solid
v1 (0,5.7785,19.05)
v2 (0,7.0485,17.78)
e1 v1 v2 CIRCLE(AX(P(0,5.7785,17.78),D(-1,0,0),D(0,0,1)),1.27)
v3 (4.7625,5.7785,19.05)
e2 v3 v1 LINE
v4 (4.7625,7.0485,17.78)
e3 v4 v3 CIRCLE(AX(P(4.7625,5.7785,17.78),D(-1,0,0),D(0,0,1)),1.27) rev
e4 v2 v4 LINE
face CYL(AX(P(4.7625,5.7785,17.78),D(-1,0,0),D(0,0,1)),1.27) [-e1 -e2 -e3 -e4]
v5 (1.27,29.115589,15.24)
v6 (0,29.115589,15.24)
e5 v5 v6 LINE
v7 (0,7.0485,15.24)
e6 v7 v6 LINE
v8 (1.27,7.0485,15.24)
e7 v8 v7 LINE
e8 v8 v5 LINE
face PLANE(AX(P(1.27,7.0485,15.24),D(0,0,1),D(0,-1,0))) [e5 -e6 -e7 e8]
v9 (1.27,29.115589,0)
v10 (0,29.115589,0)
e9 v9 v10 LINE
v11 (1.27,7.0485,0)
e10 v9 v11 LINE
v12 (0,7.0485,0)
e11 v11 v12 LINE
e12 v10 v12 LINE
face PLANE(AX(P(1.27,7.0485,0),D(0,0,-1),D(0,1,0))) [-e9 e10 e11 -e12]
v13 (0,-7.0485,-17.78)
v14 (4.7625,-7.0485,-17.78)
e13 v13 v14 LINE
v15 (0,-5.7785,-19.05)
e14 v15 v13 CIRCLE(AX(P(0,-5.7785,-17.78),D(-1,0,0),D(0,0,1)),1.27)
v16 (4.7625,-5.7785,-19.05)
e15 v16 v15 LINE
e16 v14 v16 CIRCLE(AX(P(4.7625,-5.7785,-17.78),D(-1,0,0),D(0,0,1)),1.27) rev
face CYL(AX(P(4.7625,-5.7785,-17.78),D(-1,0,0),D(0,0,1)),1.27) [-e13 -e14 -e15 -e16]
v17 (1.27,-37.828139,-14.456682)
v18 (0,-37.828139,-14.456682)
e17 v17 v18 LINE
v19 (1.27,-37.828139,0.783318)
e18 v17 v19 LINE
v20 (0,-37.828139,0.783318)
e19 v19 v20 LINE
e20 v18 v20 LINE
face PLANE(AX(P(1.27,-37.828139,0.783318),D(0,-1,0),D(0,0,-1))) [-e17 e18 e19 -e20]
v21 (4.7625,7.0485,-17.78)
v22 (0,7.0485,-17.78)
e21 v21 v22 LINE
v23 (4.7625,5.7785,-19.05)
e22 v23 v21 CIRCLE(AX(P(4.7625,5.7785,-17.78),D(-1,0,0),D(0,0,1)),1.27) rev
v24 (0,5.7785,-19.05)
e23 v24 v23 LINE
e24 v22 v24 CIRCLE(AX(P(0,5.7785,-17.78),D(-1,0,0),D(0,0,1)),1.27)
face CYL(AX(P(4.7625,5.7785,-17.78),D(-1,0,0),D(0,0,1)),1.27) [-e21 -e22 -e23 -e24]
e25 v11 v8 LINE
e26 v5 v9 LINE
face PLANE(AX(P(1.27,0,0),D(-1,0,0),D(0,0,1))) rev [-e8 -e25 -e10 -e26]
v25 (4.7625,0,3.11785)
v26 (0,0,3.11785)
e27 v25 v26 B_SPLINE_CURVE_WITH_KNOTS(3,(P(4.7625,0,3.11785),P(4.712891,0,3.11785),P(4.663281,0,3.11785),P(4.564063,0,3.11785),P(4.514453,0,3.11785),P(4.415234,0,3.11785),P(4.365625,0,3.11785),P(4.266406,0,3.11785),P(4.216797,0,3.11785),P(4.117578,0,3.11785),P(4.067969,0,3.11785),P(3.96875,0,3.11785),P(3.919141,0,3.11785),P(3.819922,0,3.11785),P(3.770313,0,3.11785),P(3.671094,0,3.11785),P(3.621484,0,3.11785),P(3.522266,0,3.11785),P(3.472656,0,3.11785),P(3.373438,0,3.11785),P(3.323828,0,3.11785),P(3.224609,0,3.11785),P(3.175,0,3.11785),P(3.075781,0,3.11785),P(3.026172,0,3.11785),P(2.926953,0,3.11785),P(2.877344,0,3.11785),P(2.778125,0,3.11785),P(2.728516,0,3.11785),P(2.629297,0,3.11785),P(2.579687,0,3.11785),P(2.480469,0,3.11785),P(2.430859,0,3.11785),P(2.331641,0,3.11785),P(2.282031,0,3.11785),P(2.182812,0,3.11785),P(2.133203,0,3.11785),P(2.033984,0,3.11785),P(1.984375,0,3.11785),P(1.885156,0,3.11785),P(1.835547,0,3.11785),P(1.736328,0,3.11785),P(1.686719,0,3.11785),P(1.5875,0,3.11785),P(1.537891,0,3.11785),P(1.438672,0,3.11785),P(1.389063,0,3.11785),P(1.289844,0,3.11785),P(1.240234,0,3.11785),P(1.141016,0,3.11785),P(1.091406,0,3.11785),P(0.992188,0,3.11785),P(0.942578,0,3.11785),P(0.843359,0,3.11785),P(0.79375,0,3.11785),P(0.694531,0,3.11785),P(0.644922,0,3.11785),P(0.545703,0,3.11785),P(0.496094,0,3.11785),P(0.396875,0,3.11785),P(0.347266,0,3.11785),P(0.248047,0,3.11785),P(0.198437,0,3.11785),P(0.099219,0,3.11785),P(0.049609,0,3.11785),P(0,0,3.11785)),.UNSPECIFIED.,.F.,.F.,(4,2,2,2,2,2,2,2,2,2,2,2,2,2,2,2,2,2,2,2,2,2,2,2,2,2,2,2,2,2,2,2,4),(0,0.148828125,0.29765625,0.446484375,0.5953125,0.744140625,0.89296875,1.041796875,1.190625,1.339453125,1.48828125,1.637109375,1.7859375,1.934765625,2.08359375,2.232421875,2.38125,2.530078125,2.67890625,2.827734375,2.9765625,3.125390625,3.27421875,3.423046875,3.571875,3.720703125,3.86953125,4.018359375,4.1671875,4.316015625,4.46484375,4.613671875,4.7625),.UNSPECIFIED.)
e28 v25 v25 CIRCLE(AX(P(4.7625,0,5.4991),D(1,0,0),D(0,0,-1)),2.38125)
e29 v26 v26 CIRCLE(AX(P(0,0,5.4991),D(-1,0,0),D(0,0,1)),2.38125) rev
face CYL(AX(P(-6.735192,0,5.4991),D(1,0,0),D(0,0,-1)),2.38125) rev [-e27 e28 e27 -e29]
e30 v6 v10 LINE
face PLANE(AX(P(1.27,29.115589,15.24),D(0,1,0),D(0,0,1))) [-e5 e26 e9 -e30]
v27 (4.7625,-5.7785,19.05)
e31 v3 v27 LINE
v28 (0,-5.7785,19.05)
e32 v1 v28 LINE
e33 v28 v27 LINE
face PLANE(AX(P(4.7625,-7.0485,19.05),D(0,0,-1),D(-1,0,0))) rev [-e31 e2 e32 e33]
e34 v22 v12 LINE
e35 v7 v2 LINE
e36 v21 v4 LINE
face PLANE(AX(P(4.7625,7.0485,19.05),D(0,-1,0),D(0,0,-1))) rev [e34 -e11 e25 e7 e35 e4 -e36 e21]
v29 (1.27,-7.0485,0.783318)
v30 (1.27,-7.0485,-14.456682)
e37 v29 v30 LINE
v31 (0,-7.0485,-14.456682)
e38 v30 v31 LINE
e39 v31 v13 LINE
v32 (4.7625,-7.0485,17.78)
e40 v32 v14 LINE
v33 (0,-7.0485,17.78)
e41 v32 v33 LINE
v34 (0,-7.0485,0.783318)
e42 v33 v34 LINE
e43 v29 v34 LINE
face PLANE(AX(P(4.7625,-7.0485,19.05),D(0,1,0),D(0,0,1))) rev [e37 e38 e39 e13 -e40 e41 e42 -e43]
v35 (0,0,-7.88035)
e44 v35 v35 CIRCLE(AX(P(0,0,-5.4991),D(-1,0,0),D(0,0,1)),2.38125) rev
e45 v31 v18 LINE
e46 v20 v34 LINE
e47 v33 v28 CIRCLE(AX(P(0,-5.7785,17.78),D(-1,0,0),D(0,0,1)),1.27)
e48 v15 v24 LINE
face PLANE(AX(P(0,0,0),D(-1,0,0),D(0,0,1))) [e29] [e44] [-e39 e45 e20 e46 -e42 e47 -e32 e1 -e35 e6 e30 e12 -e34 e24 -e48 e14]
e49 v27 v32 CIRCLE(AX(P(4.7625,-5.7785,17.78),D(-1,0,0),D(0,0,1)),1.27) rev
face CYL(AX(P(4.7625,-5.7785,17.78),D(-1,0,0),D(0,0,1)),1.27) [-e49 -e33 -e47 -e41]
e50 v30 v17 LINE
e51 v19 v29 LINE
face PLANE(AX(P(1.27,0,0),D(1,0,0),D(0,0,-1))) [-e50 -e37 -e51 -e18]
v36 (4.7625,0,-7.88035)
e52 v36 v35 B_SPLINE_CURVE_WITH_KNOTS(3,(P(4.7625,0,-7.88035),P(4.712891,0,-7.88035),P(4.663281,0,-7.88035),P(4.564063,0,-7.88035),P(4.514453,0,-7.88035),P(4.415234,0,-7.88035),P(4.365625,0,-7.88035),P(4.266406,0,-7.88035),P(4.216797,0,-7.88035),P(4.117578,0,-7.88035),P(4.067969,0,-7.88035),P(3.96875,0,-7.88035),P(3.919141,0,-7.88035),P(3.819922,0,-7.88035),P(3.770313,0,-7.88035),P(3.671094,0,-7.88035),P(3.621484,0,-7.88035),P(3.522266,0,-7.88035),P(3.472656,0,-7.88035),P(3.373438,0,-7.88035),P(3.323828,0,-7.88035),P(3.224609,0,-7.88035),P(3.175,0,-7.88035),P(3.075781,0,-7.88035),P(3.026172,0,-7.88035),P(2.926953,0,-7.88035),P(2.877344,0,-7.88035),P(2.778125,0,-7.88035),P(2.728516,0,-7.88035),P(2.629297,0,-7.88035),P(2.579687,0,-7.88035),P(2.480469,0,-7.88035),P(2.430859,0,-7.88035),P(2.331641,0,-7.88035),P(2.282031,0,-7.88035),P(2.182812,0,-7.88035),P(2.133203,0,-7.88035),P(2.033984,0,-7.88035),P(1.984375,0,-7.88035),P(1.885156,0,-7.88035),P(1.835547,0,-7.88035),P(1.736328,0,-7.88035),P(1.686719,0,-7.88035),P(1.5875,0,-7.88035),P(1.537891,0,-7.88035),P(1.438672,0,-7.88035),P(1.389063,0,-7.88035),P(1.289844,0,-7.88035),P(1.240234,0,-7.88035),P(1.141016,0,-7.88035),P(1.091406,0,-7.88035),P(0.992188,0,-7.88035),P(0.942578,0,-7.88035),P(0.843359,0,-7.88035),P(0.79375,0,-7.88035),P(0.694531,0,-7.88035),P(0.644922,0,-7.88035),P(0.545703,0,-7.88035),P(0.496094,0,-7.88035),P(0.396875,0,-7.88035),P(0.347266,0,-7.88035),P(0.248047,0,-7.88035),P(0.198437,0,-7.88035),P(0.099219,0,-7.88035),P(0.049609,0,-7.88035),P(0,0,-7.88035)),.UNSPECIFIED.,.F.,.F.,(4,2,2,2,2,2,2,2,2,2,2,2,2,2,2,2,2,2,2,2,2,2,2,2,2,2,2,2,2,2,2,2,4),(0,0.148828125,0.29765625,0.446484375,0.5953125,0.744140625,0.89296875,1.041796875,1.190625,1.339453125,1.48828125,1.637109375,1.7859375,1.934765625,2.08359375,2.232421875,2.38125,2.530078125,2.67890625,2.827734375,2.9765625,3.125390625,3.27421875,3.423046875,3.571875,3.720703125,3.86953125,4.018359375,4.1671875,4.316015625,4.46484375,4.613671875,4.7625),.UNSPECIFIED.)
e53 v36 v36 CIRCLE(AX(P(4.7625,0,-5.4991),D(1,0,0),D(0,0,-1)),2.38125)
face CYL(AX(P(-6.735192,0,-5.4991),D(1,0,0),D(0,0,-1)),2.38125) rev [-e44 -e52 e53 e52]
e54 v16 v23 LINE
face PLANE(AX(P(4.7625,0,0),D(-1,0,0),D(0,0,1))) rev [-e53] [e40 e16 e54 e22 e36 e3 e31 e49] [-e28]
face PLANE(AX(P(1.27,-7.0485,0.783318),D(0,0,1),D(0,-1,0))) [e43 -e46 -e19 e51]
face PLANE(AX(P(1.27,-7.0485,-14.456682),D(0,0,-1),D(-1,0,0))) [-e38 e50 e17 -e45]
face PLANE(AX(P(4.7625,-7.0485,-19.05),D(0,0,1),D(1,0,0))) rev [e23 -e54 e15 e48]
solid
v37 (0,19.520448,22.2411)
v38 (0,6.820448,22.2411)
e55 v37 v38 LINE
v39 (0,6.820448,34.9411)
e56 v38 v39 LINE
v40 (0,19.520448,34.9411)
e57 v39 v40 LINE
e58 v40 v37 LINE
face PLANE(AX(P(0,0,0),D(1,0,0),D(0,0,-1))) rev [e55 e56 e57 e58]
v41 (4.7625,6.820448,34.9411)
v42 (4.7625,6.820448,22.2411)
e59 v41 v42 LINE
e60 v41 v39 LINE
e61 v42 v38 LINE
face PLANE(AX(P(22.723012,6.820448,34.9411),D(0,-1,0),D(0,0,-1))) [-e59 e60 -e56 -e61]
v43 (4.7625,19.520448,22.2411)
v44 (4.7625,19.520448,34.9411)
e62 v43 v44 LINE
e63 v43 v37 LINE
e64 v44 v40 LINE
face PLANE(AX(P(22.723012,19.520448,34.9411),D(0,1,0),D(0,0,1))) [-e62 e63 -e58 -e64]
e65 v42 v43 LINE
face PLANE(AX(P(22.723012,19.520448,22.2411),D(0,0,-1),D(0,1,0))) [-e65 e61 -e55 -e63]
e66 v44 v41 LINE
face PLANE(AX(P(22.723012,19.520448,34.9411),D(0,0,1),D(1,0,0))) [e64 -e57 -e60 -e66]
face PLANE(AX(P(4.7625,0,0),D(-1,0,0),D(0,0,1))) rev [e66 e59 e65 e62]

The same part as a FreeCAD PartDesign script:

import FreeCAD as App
import Part
import Sketcher
from FreeCAD import Vector
Q = App.Units.Quantity


def edges_at(feature, points):
    """Names of the edges that pass closest to the given points."""
    edges = feature.Shape.Edges
    near = lambda p: min(range(len(edges)), key=lambda i: edges[i].distToShape(Part.Vertex(*p))[0])
    return sorted({f"Edge{near(p) + 1}" for p in points})


def add_polygon(sketch, points):
    """Adds a closed chain of lines whose ends are joined by coincident constraints."""
    first, n = sketch.GeometryCount, len(points)
    for a, b in zip(points, points[1:] + points[:1]):
        sketch.addGeometry(Part.LineSegment(App.Vector(*a, 0), App.Vector(*b, 0)), False)
    for i in range(n):
        sketch.addConstraint(Sketcher.Constraint("Coincident", first + i, 2, first + (i + 1) % n, 1))

doc = App.newDocument("Part")
body = doc.addObject("PartDesign::Body", "Body")

# Sketch on YZ plane
sketch1 = doc.addObject("Sketcher::SketchObject", "Sketch")
body.addObject(sketch1)
sketch1.AttachmentSupport = (doc.YZ_Plane, [""])
sketch1.MapMode = "FlatFace"
add_polygon(sketch1, [(7.0485, 19.05), (-7.0485, 19.05), (-7.0485, -19.05), (7.0485, -19.05)])  # lines 0-3
sketch1.addConstraint([
    Sketcher.Constraint("Horizontal", 0),
    Sketcher.Constraint("Vertical", 1),
    Sketcher.Constraint("Horizontal", 2),
    Sketcher.Constraint("Vertical", 3),
    Sketcher.Constraint("Symmetric", 0, 2, 2, 2, -1, 1),
    Sketcher.Constraint("DistanceY", 1, 2, 1, 1, Q("1.5 in")),
    Sketcher.Constraint("DistanceX", 0, 2, 0, 1, Q("0.555 in")),
])
pad1 = doc.addObject("PartDesign::Pad", "Pad")
body.addObject(pad1)
pad1.Profile = sketch1
pad1.Length = Q("0.1875 in")
doc.recompute()

fillet = doc.addObject("PartDesign::Fillet", "Fillet")
body.addObject(fillet)
fillet.Base = (pad1, edges_at(pad1, [
    (2.381, 7.048, 19.05),
    (2.381, 7.048, -19.05),
    (2.381, -7.048, -19.05),
    (2.381, -7.048, 19.05),
]))
fillet.Radius = Q("0.05 in")

# Sketch on YZ plane
sketch2 = doc.addObject("Sketcher::SketchObject", "Sketch001")
body.addObject(sketch2)
sketch2.AttachmentSupport = (doc.YZ_Plane, [""])
sketch2.MapMode = "FlatFace"
sketch2.AttachmentOffset = App.Placement(Vector(0, 0, 0.1875 * 25.4), App.Rotation())
sketch2.addGeometry([
    Part.Circle(Vector(0, 5.4991, 0), Vector(0, 0, 1), 2.38125),
    Part.Circle(Vector(0, -5.4991, 0), Vector(0, 0, 1), 2.38125),
], False)
sketch2.addConstraint([
    Sketcher.Constraint("Equal", 0, 1),
    Sketcher.Constraint("Symmetric", 0, 3, 1, 3, -1, 1),
    Sketcher.Constraint("PointOnObject", 0, 3, -2),
    Sketcher.Constraint("Diameter", 0, Q("0.1875 in")),
    Sketcher.Constraint("DistanceY", 1, 3, 0, 3, Q("0.433 in")),
])
pocket1 = doc.addObject("PartDesign::Pocket", "Pocket")
body.addObject(pocket1)
pocket1.Profile = sketch2
pocket1.Length = Q("0.1875 in")

# Sketch on YZ plane
sketch3 = doc.addObject("Sketcher::SketchObject", "Sketch002")
body.addObject(sketch3)
sketch3.AttachmentSupport = (doc.YZ_Plane, [""])
sketch3.MapMode = "FlatFace"
add_polygon(sketch3, [(29.115589, 0), (7.0485, 0), (7.0485, 15.24), (29.115589, 15.24)])  # lines 0-3
add_polygon(sketch3, [(-7.0485, -14.456682), (-37.828139, -14.456682), (-37.828139, 0.783318), (-7.0485, 0.783318)])  # lines 4-7
sketch3.addConstraint([
    Sketcher.Constraint("Horizontal", 0),
    Sketcher.Constraint("Vertical", 1),
    Sketcher.Constraint("Horizontal", 2),
    Sketcher.Constraint("Vertical", 3),
    Sketcher.Constraint("Horizontal", 4),
    Sketcher.Constraint("Vertical", 5),
    Sketcher.Constraint("Horizontal", 6),
    Sketcher.Constraint("Vertical", 7),
    Sketcher.Constraint("PointOnObject", 0, 2, -1),
    Sketcher.Constraint("Equal", 3, 5),
    Sketcher.Constraint("DistanceY", 1, 1, 1, 2, Q("0.6 in")),
    Sketcher.Constraint("DistanceX", 6, 2, 0, 2, Q("0.555 in")),
    Sketcher.Constraint("DistanceX", -1, 1, 0, 2, Q("0.2775 in")),
    Sketcher.Constraint("DistanceX", 0, 2, 0, 1, Q("22.067089 mm")),
    Sketcher.Constraint("DistanceX", 4, 2, 4, 1, Q("30.779639 mm")),
    Sketcher.Constraint("DistanceY", 4, 2, -1, 1, Q("14.456682 mm")),
])
pad2 = doc.addObject("PartDesign::Pad", "Pad001")
body.addObject(pad2)
pad2.Profile = sketch3
pad2.Length = Q("0.05 in")
body2 = doc.addObject("PartDesign::Body", "Body001")

# Sketch on YZ plane
sketch4 = doc.addObject("Sketcher::SketchObject", "Sketch003")
body2.addObject(sketch4)
sketch4.AttachmentSupport = (doc.getObject("YZ_Plane001"), [""])
sketch4.MapMode = "FlatFace"
add_polygon(sketch4, [(19.520448, 22.2411), (6.820448, 22.2411), (6.820448, 34.9411), (19.520448, 34.9411)])  # lines 0-3
sketch4.addConstraint([
    Sketcher.Constraint("Horizontal", 0),
    Sketcher.Constraint("Vertical", 1),
    Sketcher.Constraint("Horizontal", 2),
    Sketcher.Constraint("Vertical", 3),
    Sketcher.Constraint("Equal", 2, 1),
    Sketcher.Constraint("DistanceX", 0, 2, 0, 1, Q("0.5 in")),
    Sketcher.Constraint("DistanceY", -1, 1, 0, 2, Q("22.2411 mm")),
    Sketcher.Constraint("DistanceX", -1, 1, 0, 2, Q("6.820448 mm")),
])
pad3 = doc.addObject("PartDesign::Pad", "Pad002")
body2.addObject(pad3)
pad3.Profile = sketch4
pad3.Length = Q("0.1875 in")

doc.recompute()
